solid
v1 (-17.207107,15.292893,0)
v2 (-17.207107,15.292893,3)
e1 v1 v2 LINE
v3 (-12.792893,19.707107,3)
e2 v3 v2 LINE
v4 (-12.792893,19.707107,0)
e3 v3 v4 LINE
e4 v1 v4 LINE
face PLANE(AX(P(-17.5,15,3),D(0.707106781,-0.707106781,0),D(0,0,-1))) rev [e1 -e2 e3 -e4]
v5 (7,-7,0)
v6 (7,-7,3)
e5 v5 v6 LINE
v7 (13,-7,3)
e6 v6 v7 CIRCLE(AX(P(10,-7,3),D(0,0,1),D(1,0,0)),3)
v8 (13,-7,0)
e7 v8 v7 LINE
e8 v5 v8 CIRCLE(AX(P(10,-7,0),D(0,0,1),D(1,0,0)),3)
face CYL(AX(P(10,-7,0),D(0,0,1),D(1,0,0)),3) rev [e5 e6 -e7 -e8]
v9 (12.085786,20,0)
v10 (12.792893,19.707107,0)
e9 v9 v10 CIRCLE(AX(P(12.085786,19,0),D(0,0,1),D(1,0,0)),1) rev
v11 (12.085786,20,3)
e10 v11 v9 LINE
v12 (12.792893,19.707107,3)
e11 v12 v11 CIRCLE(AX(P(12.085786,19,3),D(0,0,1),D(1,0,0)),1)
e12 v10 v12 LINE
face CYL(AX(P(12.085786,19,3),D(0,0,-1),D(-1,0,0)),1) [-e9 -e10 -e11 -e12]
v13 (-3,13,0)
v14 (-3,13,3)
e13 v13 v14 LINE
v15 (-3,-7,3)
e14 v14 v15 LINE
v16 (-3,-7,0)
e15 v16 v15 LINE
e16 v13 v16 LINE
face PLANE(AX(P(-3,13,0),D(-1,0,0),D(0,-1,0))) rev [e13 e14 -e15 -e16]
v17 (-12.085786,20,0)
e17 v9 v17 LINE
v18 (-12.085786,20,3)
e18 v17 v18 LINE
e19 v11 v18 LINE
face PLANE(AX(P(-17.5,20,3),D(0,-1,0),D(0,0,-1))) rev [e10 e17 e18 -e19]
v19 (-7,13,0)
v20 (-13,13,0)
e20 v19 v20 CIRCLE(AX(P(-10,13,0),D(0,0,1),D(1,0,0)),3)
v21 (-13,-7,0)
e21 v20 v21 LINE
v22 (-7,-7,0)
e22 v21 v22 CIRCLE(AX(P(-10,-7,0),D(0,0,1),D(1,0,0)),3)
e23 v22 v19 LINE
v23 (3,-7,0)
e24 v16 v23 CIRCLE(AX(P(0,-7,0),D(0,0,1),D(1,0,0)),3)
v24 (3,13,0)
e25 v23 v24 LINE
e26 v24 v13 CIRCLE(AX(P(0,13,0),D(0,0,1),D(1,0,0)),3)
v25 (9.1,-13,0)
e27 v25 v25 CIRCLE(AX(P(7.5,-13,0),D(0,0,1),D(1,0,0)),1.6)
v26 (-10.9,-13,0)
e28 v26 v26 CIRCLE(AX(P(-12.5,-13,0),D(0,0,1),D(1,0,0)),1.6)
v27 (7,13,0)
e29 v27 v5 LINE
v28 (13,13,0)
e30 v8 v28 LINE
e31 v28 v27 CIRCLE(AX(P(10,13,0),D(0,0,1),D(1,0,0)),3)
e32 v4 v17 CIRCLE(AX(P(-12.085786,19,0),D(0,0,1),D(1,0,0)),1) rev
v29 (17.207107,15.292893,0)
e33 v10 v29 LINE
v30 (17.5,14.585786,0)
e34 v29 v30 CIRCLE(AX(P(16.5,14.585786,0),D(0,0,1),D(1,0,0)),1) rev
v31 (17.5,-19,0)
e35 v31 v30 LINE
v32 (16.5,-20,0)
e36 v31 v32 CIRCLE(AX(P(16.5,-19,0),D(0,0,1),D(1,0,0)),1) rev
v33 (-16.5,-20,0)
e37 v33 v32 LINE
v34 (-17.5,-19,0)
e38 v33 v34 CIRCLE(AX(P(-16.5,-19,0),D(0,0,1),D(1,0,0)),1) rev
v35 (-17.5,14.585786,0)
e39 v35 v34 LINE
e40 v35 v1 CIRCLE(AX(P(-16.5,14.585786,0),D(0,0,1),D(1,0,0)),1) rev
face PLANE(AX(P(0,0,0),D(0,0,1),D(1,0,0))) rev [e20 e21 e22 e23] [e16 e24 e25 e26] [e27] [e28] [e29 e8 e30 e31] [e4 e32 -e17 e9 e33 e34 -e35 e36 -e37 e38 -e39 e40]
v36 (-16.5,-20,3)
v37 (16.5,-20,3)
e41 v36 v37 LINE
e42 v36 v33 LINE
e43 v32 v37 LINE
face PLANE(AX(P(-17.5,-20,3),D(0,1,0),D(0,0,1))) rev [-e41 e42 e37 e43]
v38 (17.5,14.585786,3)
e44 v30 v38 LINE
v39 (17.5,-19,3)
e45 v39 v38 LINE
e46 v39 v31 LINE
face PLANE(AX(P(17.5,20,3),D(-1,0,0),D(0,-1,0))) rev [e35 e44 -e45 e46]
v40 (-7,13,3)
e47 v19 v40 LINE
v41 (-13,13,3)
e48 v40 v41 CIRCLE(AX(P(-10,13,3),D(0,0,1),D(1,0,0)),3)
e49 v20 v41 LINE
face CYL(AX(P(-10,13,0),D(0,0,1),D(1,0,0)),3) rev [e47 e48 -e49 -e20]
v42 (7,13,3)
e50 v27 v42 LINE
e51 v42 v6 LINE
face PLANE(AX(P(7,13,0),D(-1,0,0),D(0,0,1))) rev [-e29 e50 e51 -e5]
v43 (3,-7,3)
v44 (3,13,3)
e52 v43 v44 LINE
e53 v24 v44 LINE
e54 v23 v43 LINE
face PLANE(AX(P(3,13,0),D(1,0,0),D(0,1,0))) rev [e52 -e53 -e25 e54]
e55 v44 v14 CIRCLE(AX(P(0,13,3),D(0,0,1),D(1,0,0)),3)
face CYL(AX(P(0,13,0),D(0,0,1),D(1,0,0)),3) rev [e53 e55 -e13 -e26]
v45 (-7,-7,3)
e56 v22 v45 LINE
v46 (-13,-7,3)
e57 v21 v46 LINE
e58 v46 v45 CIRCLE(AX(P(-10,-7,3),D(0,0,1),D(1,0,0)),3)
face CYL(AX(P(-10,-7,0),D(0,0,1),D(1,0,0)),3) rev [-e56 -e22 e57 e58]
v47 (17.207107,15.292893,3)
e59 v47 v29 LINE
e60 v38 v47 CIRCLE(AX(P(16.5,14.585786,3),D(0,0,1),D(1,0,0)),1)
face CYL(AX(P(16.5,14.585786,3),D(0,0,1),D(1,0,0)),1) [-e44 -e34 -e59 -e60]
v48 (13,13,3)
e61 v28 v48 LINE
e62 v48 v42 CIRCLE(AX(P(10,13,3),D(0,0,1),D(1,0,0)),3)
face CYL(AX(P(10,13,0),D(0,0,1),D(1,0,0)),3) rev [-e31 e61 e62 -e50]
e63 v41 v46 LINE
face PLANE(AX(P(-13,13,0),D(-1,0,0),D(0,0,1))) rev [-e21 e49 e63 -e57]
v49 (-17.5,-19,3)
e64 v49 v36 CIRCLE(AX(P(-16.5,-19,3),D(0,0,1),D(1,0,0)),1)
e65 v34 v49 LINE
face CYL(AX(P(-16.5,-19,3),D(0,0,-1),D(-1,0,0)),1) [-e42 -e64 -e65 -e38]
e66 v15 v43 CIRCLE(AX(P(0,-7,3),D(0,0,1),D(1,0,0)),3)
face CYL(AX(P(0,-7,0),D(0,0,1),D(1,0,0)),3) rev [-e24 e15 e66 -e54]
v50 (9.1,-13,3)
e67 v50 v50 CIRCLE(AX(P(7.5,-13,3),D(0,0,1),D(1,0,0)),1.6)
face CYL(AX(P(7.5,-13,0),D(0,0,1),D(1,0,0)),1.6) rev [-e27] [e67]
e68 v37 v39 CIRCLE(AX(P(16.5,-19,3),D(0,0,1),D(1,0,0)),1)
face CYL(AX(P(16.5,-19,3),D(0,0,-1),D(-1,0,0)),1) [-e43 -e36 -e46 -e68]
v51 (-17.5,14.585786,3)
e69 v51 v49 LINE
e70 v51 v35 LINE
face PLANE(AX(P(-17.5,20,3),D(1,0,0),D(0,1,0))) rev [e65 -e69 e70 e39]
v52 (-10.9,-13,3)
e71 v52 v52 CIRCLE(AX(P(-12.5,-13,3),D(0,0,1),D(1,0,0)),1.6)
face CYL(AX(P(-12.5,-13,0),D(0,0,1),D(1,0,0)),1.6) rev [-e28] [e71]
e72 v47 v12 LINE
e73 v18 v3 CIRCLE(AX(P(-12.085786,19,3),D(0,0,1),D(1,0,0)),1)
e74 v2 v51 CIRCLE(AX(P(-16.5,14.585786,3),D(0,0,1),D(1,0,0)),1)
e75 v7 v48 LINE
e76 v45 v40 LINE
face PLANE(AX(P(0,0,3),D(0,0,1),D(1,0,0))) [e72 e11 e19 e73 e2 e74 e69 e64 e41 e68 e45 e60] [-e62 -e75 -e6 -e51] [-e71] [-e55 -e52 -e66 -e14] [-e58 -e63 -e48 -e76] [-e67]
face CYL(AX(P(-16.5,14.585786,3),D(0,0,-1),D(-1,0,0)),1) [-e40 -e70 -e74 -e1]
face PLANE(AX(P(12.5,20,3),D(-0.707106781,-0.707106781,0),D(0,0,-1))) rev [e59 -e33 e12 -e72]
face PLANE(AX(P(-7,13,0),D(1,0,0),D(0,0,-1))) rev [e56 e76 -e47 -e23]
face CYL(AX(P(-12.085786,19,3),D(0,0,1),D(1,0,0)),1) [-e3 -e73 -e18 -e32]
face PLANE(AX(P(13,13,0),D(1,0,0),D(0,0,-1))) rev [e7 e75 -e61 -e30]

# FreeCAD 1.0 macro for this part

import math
import FreeCAD as App
import Part
import Sketcher
from FreeCAD import Vector
Q = App.Units.Quantity


def edges_at(feature, points):
    """Names of the edges that pass closest to the given points."""
    edges = feature.Shape.Edges
    near = lambda p: min(range(len(edges)), key=lambda i: edges[i].distToShape(Part.Vertex(*p))[0])
    return sorted({f"Edge{near(p) + 1}" for p in points})


def add_polygon(sketch, points):
    """Adds a closed chain of lines whose ends are joined by coincident constraints."""
    first, n = sketch.GeometryCount, len(points)
    for a, b in zip(points, points[1:] + points[:1]):
        sketch.addGeometry(Part.LineSegment(App.Vector(*a, 0), App.Vector(*b, 0)), False)
    for i in range(n):
        sketch.addConstraint(Sketcher.Constraint("Coincident", first + i, 2, first + (i + 1) % n, 1))

doc = App.newDocument("Part")
body = doc.addObject("PartDesign::Body", "Body")

sketch1 = body.newObject("Sketcher::SketchObject", "Sketch")
sketch1.AttachmentSupport = (doc.getObject("XY_Plane"), [""])
sketch1.MapMode = "FlatFace"
add_polygon(sketch1, [(-17.5, 20), (-17.5, -20), (17.5, -20), (17.5, 20)])
sketch1.addConstraint(Sketcher.Constraint("Vertical", 0))
sketch1.addConstraint(Sketcher.Constraint("Horizontal", 1))
sketch1.addConstraint(Sketcher.Constraint("Vertical", 2))
sketch1.addConstraint(Sketcher.Constraint("Horizontal", 3))
sketch1.addConstraint(Sketcher.Constraint("Symmetric", 0, 2, 2, 2, -1, 1))
sketch1.addConstraint(Sketcher.Constraint("DistanceX", 1, 1, 1, 2, Q("35 mm")))
sketch1.addConstraint(Sketcher.Constraint("DistanceY", 0, 2, 0, 1, Q("40 mm")))
pad1 = body.newObject("PartDesign::Pad", "Pad")
pad1.Profile = sketch1
pad1.Length = 3
doc.recompute()

chamfer = body.newObject("PartDesign::Chamfer", "Chamfer")
chamfer.Base = (pad1, edges_at(pad1, [(-17.5, 20, 1.5), (17.5, 20, 1.5)]))
chamfer.Size = 5
doc.recompute()

fillet = body.newObject("PartDesign::Fillet", "Fillet")
fillet.Base = (chamfer, edges_at(chamfer, [
    (-17.5, 15, 1.5),
    (12.5, 20, 1.5),
    (-12.5, 20, 1.5),
    (17.5, 15, 1.5),
    (17.5, -20, 1.5),
    (-17.5, -20, 1.5),
]))
fillet.Radius = 1

sketch2 = body.newObject("Sketcher::SketchObject", "Sketch001")
sketch2.AttachmentSupport = (doc.getObject("XY_Plane"), [""])
sketch2.MapMode = "FlatFace"
sketch2.AttachmentOffset = App.Placement(Vector(0, 0, 3), App.Rotation())
sketch2.addGeometry(Part.Circle(Vector(-12.5, -13, 0), Vector(0, 0, 1), 1.6), False)
sketch2.addGeometry(Part.Circle(Vector(7.5, -13, 0), Vector(0, 0, 1), 1.6), False)
sketch2.addConstraint(Sketcher.Constraint("Equal", 0, 1))
sketch2.addConstraint(Sketcher.Constraint("Horizontal", 0, 3, 1, 3))
sketch2.addConstraint(Sketcher.Constraint("Diameter", 0, Q("3.2 mm")))
sketch2.addConstraint(Sketcher.Constraint("DistanceY", 0, 3, -1, 1, Q("13 mm")))
sketch2.addConstraint(Sketcher.Constraint("DistanceX", 0, 3, 1, 3, Q("20 mm")))
sketch2.addConstraint(Sketcher.Constraint("DistanceX", 0, 3, -1, 1, Q("12.5 mm")))
pocket1 = body.newObject("PartDesign::Pocket", "Pocket")
pocket1.Profile = sketch2
pocket1.Type = "ThroughAll"

sketch3 = body.newObject("Sketcher::SketchObject", "Sketch002")
sketch3.AttachmentSupport = (doc.getObject("XY_Plane"), [""])
sketch3.MapMode = "FlatFace"
sketch3.AttachmentOffset = App.Placement(Vector(0, 0, 3), App.Rotation())
sketch3.addGeometry(Part.LineSegment(Vector(3, -7, 0), Vector(3, 13, 0)), False)
sketch3.addGeometry(Part.ArcOfCircle(Part.Circle(Vector(0, 13, 0), Vector(0, 0, 1), 3), math.radians(0), math.radians(180)), False)
sketch3.addGeometry(Part.LineSegment(Vector(-3, 13, 0), Vector(-3, -7, 0)), False)
sketch3.addGeometry(Part.ArcOfCircle(Part.Circle(Vector(0, -7, 0), Vector(0, 0, 1), 3), math.radians(180), math.radians(360)), False)
sketch3.addGeometry(Part.LineSegment(Vector(-7, -7, 0), Vector(-7, 13, 0)), False)
sketch3.addGeometry(Part.ArcOfCircle(Part.Circle(Vector(-10, 13, 0), Vector(0, 0, 1), 3), math.radians(0), math.radians(180)), False)
sketch3.addGeometry(Part.LineSegment(Vector(-13, 13, 0), Vector(-13, -7, 0)), False)
sketch3.addGeometry(Part.ArcOfCircle(Part.Circle(Vector(-10, -7, 0), Vector(0, 0, 1), 3), math.radians(180), math.radians(360)), False)
sketch3.addGeometry(Part.LineSegment(Vector(13, -7, 0), Vector(13, 13, 0)), False)
sketch3.addGeometry(Part.ArcOfCircle(Part.Circle(Vector(10, 13, 0), Vector(0, 0, 1), 3), math.radians(0), math.radians(180)), False)
sketch3.addGeometry(Part.LineSegment(Vector(7, 13, 0), Vector(7, -7, 0)), False)
sketch3.addGeometry(Part.ArcOfCircle(Part.Circle(Vector(10, -7, 0), Vector(0, 0, 1), 3), math.radians(180), math.radians(360)), False)
sketch3.addConstraint(Sketcher.Constraint("Tangent", 0, 2, 1, 1))
sketch3.addConstraint(Sketcher.Constraint("Tangent", 1, 2, 2, 1))
sketch3.addConstraint(Sketcher.Constraint("Tangent", 2, 2, 3, 1))
sketch3.addConstraint(Sketcher.Constraint("Tangent", 3, 2, 0, 1))
sketch3.addConstraint(Sketcher.Constraint("Tangent", 4, 2, 5, 1))
sketch3.addConstraint(Sketcher.Constraint("Tangent", 5, 2, 6, 1))
sketch3.addConstraint(Sketcher.Constraint("Tangent", 6, 2, 7, 1))
sketch3.addConstraint(Sketcher.Constraint("Tangent", 7, 2, 4, 1))
sketch3.addConstraint(Sketcher.Constraint("Tangent", 8, 2, 9, 1))
sketch3.addConstraint(Sketcher.Constraint("Tangent", 9, 2, 10, 1))
sketch3.addConstraint(Sketcher.Constraint("Tangent", 10, 2, 11, 1))
sketch3.addConstraint(Sketcher.Constraint("Tangent", 11, 2, 8, 1))
sketch3.addConstraint(Sketcher.Constraint("Vertical", 0))
sketch3.addConstraint(Sketcher.Constraint("Vertical", 2))
sketch3.addConstraint(Sketcher.Constraint("Vertical", 4))
sketch3.addConstraint(Sketcher.Constraint("Vertical", 6))
sketch3.addConstraint(Sketcher.Constraint("Vertical", 8))
sketch3.addConstraint(Sketcher.Constraint("Vertical", 10))
sketch3.addConstraint(Sketcher.Constraint("Equal", 3, 5))
sketch3.addConstraint(Sketcher.Constraint("Equal", 7, 9))
sketch3.addConstraint(Sketcher.Constraint("Symmetric", 5, 3, 9, 3, -2))
sketch3.addConstraint(Sketcher.Constraint("PointOnObject", 1, 3, -2))
sketch3.addConstraint(Sketcher.Constraint("Horizontal", 1, 3, 5, 3))
sketch3.addConstraint(Sketcher.Constraint("Horizontal", 3, 3, 7, 3))
sketch3.addConstraint(Sketcher.Constraint("Horizontal", 7, 3, 11, 3))
sketch3.addConstraint(Sketcher.Constraint("Radius", 1, Q("3 mm")))
sketch3.addConstraint(Sketcher.Constraint("DistanceY", 0, 1, 0, 2, Q("20 mm")))
sketch3.addConstraint(Sketcher.Constraint("DistanceY", -1, 1, 1, 3, Q("13 mm")))
sketch3.addConstraint(Sketcher.Constraint("DistanceX", 5, 3, -1, 1, Q("10 mm")))
pocket2 = body.newObject("PartDesign::Pocket", "Pocket001")
pocket2.Profile = sketch3
pocket2.Type = "ThroughAll"

doc.recompute()
